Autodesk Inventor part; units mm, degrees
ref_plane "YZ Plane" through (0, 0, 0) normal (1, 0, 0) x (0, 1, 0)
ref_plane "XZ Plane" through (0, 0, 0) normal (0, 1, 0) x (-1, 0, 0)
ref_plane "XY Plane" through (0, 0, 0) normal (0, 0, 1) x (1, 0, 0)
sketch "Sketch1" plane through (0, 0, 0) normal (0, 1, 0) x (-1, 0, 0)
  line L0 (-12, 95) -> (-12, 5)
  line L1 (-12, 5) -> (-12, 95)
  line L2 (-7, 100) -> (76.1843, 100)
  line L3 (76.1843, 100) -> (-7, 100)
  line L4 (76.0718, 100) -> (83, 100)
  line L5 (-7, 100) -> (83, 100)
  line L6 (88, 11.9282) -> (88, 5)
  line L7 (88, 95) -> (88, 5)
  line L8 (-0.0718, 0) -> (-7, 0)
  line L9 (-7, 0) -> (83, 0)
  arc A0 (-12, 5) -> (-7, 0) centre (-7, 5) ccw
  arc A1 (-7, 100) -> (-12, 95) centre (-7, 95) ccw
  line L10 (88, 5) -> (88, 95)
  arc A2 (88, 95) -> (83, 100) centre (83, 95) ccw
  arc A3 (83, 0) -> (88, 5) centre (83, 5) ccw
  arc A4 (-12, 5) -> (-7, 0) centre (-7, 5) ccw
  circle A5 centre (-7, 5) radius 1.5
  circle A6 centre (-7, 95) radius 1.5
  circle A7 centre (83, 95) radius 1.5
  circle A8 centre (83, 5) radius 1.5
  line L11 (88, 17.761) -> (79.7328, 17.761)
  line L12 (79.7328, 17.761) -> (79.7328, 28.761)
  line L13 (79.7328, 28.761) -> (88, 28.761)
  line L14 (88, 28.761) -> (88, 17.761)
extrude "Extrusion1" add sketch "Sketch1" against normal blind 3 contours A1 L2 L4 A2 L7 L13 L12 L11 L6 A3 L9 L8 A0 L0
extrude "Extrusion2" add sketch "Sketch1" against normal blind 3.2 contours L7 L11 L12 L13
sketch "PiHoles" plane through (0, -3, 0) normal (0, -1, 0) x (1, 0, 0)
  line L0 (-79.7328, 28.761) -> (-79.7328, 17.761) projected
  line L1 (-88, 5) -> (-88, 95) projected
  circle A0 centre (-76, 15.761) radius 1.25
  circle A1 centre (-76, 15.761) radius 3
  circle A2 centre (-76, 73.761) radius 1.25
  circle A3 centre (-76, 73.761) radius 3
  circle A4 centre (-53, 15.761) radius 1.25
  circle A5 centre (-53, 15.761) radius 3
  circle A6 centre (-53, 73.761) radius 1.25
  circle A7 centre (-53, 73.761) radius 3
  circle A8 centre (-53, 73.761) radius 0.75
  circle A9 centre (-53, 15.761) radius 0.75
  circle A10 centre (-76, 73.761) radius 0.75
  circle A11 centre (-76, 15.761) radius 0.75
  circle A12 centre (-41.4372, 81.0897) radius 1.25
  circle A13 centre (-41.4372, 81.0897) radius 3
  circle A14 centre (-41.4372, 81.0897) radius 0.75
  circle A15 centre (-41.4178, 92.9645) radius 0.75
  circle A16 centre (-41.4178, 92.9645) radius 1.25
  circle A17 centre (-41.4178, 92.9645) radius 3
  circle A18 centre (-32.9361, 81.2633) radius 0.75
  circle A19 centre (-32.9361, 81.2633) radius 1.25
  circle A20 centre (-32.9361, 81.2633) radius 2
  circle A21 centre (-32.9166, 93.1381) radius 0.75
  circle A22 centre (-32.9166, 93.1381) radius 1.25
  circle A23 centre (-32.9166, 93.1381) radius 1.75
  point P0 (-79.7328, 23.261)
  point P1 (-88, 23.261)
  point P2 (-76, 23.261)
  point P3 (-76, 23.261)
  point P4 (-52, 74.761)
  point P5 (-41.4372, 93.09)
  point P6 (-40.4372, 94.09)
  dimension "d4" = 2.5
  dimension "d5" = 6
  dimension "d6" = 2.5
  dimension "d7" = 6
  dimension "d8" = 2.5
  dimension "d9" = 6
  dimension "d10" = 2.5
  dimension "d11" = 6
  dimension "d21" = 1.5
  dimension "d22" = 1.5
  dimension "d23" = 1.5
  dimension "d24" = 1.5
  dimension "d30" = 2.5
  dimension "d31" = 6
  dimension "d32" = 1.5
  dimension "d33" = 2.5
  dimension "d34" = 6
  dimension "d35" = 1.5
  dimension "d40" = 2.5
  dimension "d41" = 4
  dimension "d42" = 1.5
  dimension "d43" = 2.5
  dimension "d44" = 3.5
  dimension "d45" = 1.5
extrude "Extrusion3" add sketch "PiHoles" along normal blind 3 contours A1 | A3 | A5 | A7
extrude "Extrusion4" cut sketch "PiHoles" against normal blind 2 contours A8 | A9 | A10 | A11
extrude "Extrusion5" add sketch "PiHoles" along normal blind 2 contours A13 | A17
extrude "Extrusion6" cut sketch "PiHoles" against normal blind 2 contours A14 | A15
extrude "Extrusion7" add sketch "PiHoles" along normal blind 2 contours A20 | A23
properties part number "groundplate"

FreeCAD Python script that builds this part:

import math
import FreeCAD as App
import Part
import Sketcher
Q = App.Units.Quantity


def add_polygon(sketch, points):
    """Adds a closed chain of lines whose ends are joined by coincident constraints."""
    first, n = sketch.GeometryCount, len(points)
    for a, b in zip(points, points[1:] + points[:1]):
        sketch.addGeometry(Part.LineSegment(App.Vector(*a, 0), App.Vector(*b, 0)), False)
    for i in range(n):
        sketch.addConstraint(Sketcher.Constraint("Coincident", first + i, 2, first + (i + 1) % n, 1))

doc = App.newDocument("Part")
body = doc.addObject("PartDesign::Body", "Body")

# Sketch on XZ plane
sketch1 = doc.addObject("Sketcher::SketchObject", "Sketch")
body.addObject(sketch1)
sketch1.AttachmentSupport = (doc.XZ_Plane, [""])
sketch1.MapMode = "FlatFace"
sketch1.addGeometry([
    Part.ArcOfCircle(Part.Circle(App.Vector(7, 95, 0), App.Vector(0, 0, 1), 5), math.radians(0), math.radians(90)),  # 0
    Part.LineSegment(App.Vector(12, 95, 0), App.Vector(12, 5, 0)),  # 1
    Part.ArcOfCircle(Part.Circle(App.Vector(7, 5, 0), App.Vector(0, 0, 1), 5), math.radians(-90), math.radians(0)),  # 2
    Part.LineSegment(App.Vector(7, 0, 0), App.Vector(-83, 0, 0)),  # 3
    Part.ArcOfCircle(Part.Circle(App.Vector(-83, 5, 0), App.Vector(0, 0, 1), 5), math.radians(180), math.radians(270)),  # 4
    Part.LineSegment(App.Vector(-88, 5, 0), App.Vector(-88, 17.8, 0)),  # 5
    Part.LineSegment(App.Vector(-88, 17.8, 0), App.Vector(-79.7, 17.8, 0)),  # 6
    Part.LineSegment(App.Vector(-79.7, 17.8, 0), App.Vector(-79.7, 28.8, 0)),  # 7
    Part.LineSegment(App.Vector(-79.7, 28.8, 0), App.Vector(-88, 28.8, 0)),  # 8
    Part.LineSegment(App.Vector(-88, 28.8, 0), App.Vector(-88, 95, 0)),  # 9
    Part.ArcOfCircle(Part.Circle(App.Vector(-83, 95, 0), App.Vector(0, 0, 1), 5), math.radians(90), math.radians(180)),  # 10
    Part.LineSegment(App.Vector(-83, 100, 0), App.Vector(7, 100, 0)),  # 11
    Part.Circle(App.Vector(7, 5, 0), App.Vector(0, 0, 1), 1.5),  # 12
    Part.Circle(App.Vector(-83, 5, 0), App.Vector(0, 0, 1), 1.5),  # 13
    Part.Circle(App.Vector(7, 95, 0), App.Vector(0, 0, 1), 1.5),  # 14
    Part.Circle(App.Vector(-83, 95, 0), App.Vector(0, 0, 1), 1.5),  # 15
], False)
sketch1.addConstraint([
    Sketcher.Constraint("Tangent", 0, 1, 1, 1),
    Sketcher.Constraint("Tangent", 1, 2, 2, 2),
    Sketcher.Constraint("Tangent", 2, 1, 3, 1),
    Sketcher.Constraint("Tangent", 3, 2, 4, 2),
    Sketcher.Constraint("Tangent", 4, 1, 5, 1),
    Sketcher.Constraint("Coincident", 5, 2, 6, 1),
    Sketcher.Constraint("Coincident", 6, 2, 7, 1),
    Sketcher.Constraint("Coincident", 7, 2, 8, 1),
    Sketcher.Constraint("Coincident", 8, 2, 9, 1),
    Sketcher.Constraint("Tangent", 9, 2, 10, 2),
    Sketcher.Constraint("Tangent", 10, 1, 11, 1),
    Sketcher.Constraint("Tangent", 11, 2, 0, 2),
    Sketcher.Constraint("Vertical", 1),
    Sketcher.Constraint("Horizontal", 3),
    Sketcher.Constraint("Vertical", 5),
    Sketcher.Constraint("Horizontal", 6),
    Sketcher.Constraint("Vertical", 7),
    Sketcher.Constraint("Horizontal", 8),
    Sketcher.Constraint("Vertical", 9),
    Sketcher.Constraint("Horizontal", 11),
    Sketcher.Constraint("Coincident", 12, 3, 2, 3),
    Sketcher.Constraint("Coincident", 13, 3, 4, 3),
    Sketcher.Constraint("Coincident", 14, 3, 0, 3),
    Sketcher.Constraint("Coincident", 15, 3, 10, 3),
    Sketcher.Constraint("Equal", 0, 2),
    Sketcher.Constraint("Equal", 2, 4),
    Sketcher.Constraint("Equal", 4, 10),
    Sketcher.Constraint("Equal", 12, 13),
    Sketcher.Constraint("Equal", 13, 14),
    Sketcher.Constraint("Equal", 14, 15),
    Sketcher.Constraint("PointOnObject", 2, 1, -1),
    Sketcher.Constraint("Vertical", 4, 3, 10, 3),
    Sketcher.Constraint("Equal", 11, 1),
    Sketcher.Constraint("Diameter", 12, Q("3 mm")),
    Sketcher.Constraint("Radius", 0, Q("5 mm")),
    Sketcher.Constraint("DistanceX", 3, 2, 3, 1, Q("90 mm")),
    Sketcher.Constraint("DistanceY", 7, 1, 7, 2, Q("11 mm")),
    Sketcher.Constraint("DistanceX", -1, 1, 0, 3, Q("7 mm")),
    Sketcher.Constraint("DistanceY", 5, 1, 5, 2, Q("12.761 mm")),
    Sketcher.Constraint("DistanceX", 6, 1, 6, 2, Q("8.2672 mm")),
])
pad1 = doc.addObject("PartDesign::Pad", "Pad")
body.addObject(pad1)
pad1.Profile = sketch1
pad1.Length = 3

# Sketch on XZ plane
sketch2 = doc.addObject("Sketcher::SketchObject", "Sketch001")
body.addObject(sketch2)
sketch2.AttachmentSupport = (doc.XZ_Plane, [""])
sketch2.MapMode = "FlatFace"
add_polygon(sketch2, [(-88, 18), (-88, 29), (-80, 29), (-80, 18)])  # lines 0-3
sketch2.addConstraint([
    Sketcher.Constraint("Vertical", 0),
    Sketcher.Constraint("Horizontal", 1),
    Sketcher.Constraint("Vertical", 2),
    Sketcher.Constraint("Horizontal", 3),
    Sketcher.Constraint("DistanceY", 0, 1, 0, 2, Q("11 mm")),
    Sketcher.Constraint("DistanceX", 0, 2, -1, 1, Q("88 mm")),
    Sketcher.Constraint("DistanceX", 1, 1, 1, 2, Q("8.2672 mm")),
    Sketcher.Constraint("DistanceY", -1, 1, 0, 2, Q("28.761 mm")),
])
pad2 = doc.addObject("PartDesign::Pad", "Pad001")
body.addObject(pad2)
pad2.Profile = sketch2
pad2.Length = 3.2

# Sketch on XZ plane
sketch3 = doc.addObject("Sketcher::SketchObject", "Sketch002")
body.addObject(sketch3)
sketch3.AttachmentSupport = (doc.XZ_Plane, [""])
sketch3.MapMode = "FlatFace"
sketch3.AttachmentOffset = App.Placement(App.Vector(0, 0, 3), App.Rotation())
sketch3.addGeometry([
    Part.Circle(App.Vector(-76, 15.8, 0), App.Vector(0, 0, 1), 3),  # 0
    Part.Circle(App.Vector(-76, 15.8, 0), App.Vector(0, 0, 1), 1.2),  # 1
    Part.Circle(App.Vector(-76, 73.8, 0), App.Vector(0, 0, 1), 3),  # 2
    Part.Circle(App.Vector(-76, 73.8, 0), App.Vector(0, 0, 1), 1.2),  # 3
    Part.Circle(App.Vector(-53, 15.8, 0), App.Vector(0, 0, 1), 3),  # 4
    Part.Circle(App.Vector(-53, 15.8, 0), App.Vector(0, 0, 1), 1.2),  # 5
    Part.Circle(App.Vector(-53, 73.8, 0), App.Vector(0, 0, 1), 3),  # 6
    Part.Circle(App.Vector(-53, 73.8, 0), App.Vector(0, 0, 1), 1.2),  # 7
], False)
sketch3.addConstraint([
    Sketcher.Constraint("Coincident", 1, 3, 0, 3),
    Sketcher.Constraint("Coincident", 3, 3, 2, 3),
    Sketcher.Constraint("Coincident", 5, 3, 4, 3),
    Sketcher.Constraint("Coincident", 7, 3, 6, 3),
    Sketcher.Constraint("Equal", 0, 2),
    Sketcher.Constraint("Equal", 1, 3),
    Sketcher.Constraint("Equal", 2, 4),
    Sketcher.Constraint("Equal", 3, 5),
    Sketcher.Constraint("Equal", 4, 6),
    Sketcher.Constraint("Equal", 5, 7),
    Sketcher.Constraint("Horizontal", 1, 3, 4, 3),
    Sketcher.Constraint("Horizontal", 3, 3, 6, 3),
    Sketcher.Constraint("Vertical", 1, 3, 2, 3),
    Sketcher.Constraint("Vertical", 5, 3, 6, 3),
    Sketcher.Constraint("Diameter", 0, Q("6 mm")),
    Sketcher.Constraint("Diameter", 1, Q("2.5 mm")),
    Sketcher.Constraint("DistanceX", 0, 3, -1, 1, Q("76 mm")),
    Sketcher.Constraint("DistanceX", 4, 3, -1, 1, Q("53 mm")),
    Sketcher.Constraint("DistanceY", 0, 3, 2, 3, Q("58 mm")),
    Sketcher.Constraint("DistanceY", -1, 1, 0, 3, Q("15.761 mm")),
])
pad3 = doc.addObject("PartDesign::Pad", "Pad002")
body.addObject(pad3)
pad3.Profile = sketch3
pad3.Length = 3

# Sketch on XZ plane
sketch4 = doc.addObject("Sketcher::SketchObject", "Sketch003")
body.addObject(sketch4)
sketch4.AttachmentSupport = (doc.XZ_Plane, [""])
sketch4.MapMode = "FlatFace"
sketch4.AttachmentOffset = App.Placement(App.Vector(0, 0, 3), App.Rotation())
sketch4.addGeometry([
    Part.Circle(App.Vector(-53, 73.8, 0), App.Vector(0, 0, 1), 0.8),
    Part.Circle(App.Vector(-53, 15.8, 0), App.Vector(0, 0, 1), 0.8),
    Part.Circle(App.Vector(-76, 73.8, 0), App.Vector(0, 0, 1), 0.8),
    Part.Circle(App.Vector(-76, 15.8, 0), App.Vector(0, 0, 1), 0.8),
], False)
sketch4.addConstraint([
    Sketcher.Constraint("Equal", 0, 1),
    Sketcher.Constraint("Equal", 1, 2),
    Sketcher.Constraint("Equal", 2, 3),
    Sketcher.Constraint("Horizontal", 0, 3, 2, 3),
    Sketcher.Constraint("Horizontal", 1, 3, 3, 3),
    Sketcher.Constraint("Vertical", 0, 3, 1, 3),
    Sketcher.Constraint("Vertical", 2, 3, 3, 3),
    Sketcher.Constraint("Diameter", 0, Q("1.5 mm")),
    Sketcher.Constraint("DistanceX", 0, 3, -1, 1, Q("53 mm")),
    Sketcher.Constraint("DistanceX", 2, 3, -1, 1, Q("76 mm")),
    Sketcher.Constraint("DistanceY", 1, 3, 0, 3, Q("58 mm")),
    Sketcher.Constraint("DistanceY", -1, 1, 0, 3, Q("73.761 mm")),
])
pocket1 = doc.addObject("PartDesign::Pocket", "Pocket")
body.addObject(pocket1)
pocket1.Profile = sketch4
pocket1.Length = 2

# Sketch on XZ plane
sketch5 = doc.addObject("Sketcher::SketchObject", "Sketch004")
body.addObject(sketch5)
sketch5.AttachmentSupport = (doc.XZ_Plane, [""])
sketch5.MapMode = "FlatFace"
sketch5.AttachmentOffset = App.Placement(App.Vector(0, 0, 3), App.Rotation())
sketch5.addGeometry([
    Part.Circle(App.Vector(-41.4, 81.1, 0), App.Vector(0, 0, 1), 3),
    Part.Circle(App.Vector(-41.4, 81.1, 0), App.Vector(0, 0, 1), 1.2),
    Part.Circle(App.Vector(-41.4, 93, 0), App.Vector(0, 0, 1), 3),
    Part.Circle(App.Vector(-41.4, 93, 0), App.Vector(0, 0, 1), 1.2),
], False)
sketch5.addConstraint([
    Sketcher.Constraint("Coincident", 1, 3, 0, 3),
    Sketcher.Constraint("Coincident", 3, 3, 2, 3),
    Sketcher.Constraint("Equal", 0, 2),
    Sketcher.Constraint("Equal", 1, 3),
    Sketcher.Constraint("Diameter", 0, Q("6 mm")),
    Sketcher.Constraint("Diameter", 1, Q("2.5 mm")),
    Sketcher.Constraint("DistanceX", 0, 3, -1, 1, Q("41.4372 mm")),
    Sketcher.Constraint("DistanceY", -1, 1, 0, 3, Q("81.0897 mm")),
    Sketcher.Constraint("DistanceX", 2, 3, -1, 1, Q("41.4178 mm")),
    Sketcher.Constraint("DistanceY", -1, 1, 2, 3, Q("92.9645 mm")),
])
pad4 = doc.addObject("PartDesign::Pad", "Pad003")
body.addObject(pad4)
pad4.Profile = sketch5
pad4.Length = 2

# Sketch on XZ plane
sketch6 = doc.addObject("Sketcher::SketchObject", "Sketch005")
body.addObject(sketch6)
sketch6.AttachmentSupport = (doc.XZ_Plane, [""])
sketch6.MapMode = "FlatFace"
sketch6.AttachmentOffset = App.Placement(App.Vector(0, 0, 3), App.Rotation())
sketch6.addGeometry([
    Part.Circle(App.Vector(-41.4, 81.1, 0), App.Vector(0, 0, 1), 0.8),
    Part.Circle(App.Vector(-41.4, 93, 0), App.Vector(0, 0, 1), 0.8),
], False)
sketch6.addConstraint([
    Sketcher.Constraint("Equal", 0, 1),
    Sketcher.Constraint("Diameter", 0, Q("1.5 mm")),
    Sketcher.Constraint("DistanceX", 0, 3, -1, 1, Q("41.4372 mm")),
    Sketcher.Constraint("DistanceY", -1, 1, 0, 3, Q("81.0897 mm")),
    Sketcher.Constraint("DistanceX", 1, 3, -1, 1, Q("41.4178 mm")),
    Sketcher.Constraint("DistanceY", -1, 1, 1, 3, Q("92.9645 mm")),
])
pocket2 = doc.addObject("PartDesign::Pocket", "Pocket001")
body.addObject(pocket2)
pocket2.Profile = sketch6
pocket2.Length = 2

# Sketch on XZ plane
sketch7 = doc.addObject("Sketcher::SketchObject", "Sketch006")
body.addObject(sketch7)
sketch7.AttachmentSupport = (doc.XZ_Plane, [""])
sketch7.MapMode = "FlatFace"
sketch7.AttachmentOffset = App.Placement(App.Vector(0, 0, 3), App.Rotation())
sketch7.addGeometry([
    Part.Circle(App.Vector(-32.9, 81.3, 0), App.Vector(0, 0, 1), 2),
    Part.Circle(App.Vector(-32.9, 81.3, 0), App.Vector(0, 0, 1), 1.2),
    Part.Circle(App.Vector(-32.9, 93.1, 0), App.Vector(0, 0, 1), 1.8),
    Part.Circle(App.Vector(-32.9, 93.1, 0), App.Vector(0, 0, 1), 1.2),
], False)
sketch7.addConstraint([
    Sketcher.Constraint("Coincident", 1, 3, 0, 3),
    Sketcher.Constraint("Coincident", 3, 3, 2, 3),
    Sketcher.Constraint("Equal", 1, 3),
    Sketcher.Constraint("Diameter", 0, Q("4 mm")),
    Sketcher.Constraint("Diameter", 1, Q("2.5 mm")),
    Sketcher.Constraint("Diameter", 2, Q("3.5 mm")),
    Sketcher.Constraint("DistanceX", 0, 3, -1, 1, Q("32.936 mm")),
    Sketcher.Constraint("DistanceY", -1, 1, 2, 3, Q("93.138 mm")),
    Sketcher.Constraint("DistanceY", -1, 1, 0, 3, Q("81.2633 mm")),
    Sketcher.Constraint("DistanceX", 2, 3, -1, 1, Q("32.9166 mm")),
])
pad5 = doc.addObject("PartDesign::Pad", "Pad004")
body.addObject(pad5)
pad5.Profile = sketch7
pad5.Length = 2

doc.recompute()
